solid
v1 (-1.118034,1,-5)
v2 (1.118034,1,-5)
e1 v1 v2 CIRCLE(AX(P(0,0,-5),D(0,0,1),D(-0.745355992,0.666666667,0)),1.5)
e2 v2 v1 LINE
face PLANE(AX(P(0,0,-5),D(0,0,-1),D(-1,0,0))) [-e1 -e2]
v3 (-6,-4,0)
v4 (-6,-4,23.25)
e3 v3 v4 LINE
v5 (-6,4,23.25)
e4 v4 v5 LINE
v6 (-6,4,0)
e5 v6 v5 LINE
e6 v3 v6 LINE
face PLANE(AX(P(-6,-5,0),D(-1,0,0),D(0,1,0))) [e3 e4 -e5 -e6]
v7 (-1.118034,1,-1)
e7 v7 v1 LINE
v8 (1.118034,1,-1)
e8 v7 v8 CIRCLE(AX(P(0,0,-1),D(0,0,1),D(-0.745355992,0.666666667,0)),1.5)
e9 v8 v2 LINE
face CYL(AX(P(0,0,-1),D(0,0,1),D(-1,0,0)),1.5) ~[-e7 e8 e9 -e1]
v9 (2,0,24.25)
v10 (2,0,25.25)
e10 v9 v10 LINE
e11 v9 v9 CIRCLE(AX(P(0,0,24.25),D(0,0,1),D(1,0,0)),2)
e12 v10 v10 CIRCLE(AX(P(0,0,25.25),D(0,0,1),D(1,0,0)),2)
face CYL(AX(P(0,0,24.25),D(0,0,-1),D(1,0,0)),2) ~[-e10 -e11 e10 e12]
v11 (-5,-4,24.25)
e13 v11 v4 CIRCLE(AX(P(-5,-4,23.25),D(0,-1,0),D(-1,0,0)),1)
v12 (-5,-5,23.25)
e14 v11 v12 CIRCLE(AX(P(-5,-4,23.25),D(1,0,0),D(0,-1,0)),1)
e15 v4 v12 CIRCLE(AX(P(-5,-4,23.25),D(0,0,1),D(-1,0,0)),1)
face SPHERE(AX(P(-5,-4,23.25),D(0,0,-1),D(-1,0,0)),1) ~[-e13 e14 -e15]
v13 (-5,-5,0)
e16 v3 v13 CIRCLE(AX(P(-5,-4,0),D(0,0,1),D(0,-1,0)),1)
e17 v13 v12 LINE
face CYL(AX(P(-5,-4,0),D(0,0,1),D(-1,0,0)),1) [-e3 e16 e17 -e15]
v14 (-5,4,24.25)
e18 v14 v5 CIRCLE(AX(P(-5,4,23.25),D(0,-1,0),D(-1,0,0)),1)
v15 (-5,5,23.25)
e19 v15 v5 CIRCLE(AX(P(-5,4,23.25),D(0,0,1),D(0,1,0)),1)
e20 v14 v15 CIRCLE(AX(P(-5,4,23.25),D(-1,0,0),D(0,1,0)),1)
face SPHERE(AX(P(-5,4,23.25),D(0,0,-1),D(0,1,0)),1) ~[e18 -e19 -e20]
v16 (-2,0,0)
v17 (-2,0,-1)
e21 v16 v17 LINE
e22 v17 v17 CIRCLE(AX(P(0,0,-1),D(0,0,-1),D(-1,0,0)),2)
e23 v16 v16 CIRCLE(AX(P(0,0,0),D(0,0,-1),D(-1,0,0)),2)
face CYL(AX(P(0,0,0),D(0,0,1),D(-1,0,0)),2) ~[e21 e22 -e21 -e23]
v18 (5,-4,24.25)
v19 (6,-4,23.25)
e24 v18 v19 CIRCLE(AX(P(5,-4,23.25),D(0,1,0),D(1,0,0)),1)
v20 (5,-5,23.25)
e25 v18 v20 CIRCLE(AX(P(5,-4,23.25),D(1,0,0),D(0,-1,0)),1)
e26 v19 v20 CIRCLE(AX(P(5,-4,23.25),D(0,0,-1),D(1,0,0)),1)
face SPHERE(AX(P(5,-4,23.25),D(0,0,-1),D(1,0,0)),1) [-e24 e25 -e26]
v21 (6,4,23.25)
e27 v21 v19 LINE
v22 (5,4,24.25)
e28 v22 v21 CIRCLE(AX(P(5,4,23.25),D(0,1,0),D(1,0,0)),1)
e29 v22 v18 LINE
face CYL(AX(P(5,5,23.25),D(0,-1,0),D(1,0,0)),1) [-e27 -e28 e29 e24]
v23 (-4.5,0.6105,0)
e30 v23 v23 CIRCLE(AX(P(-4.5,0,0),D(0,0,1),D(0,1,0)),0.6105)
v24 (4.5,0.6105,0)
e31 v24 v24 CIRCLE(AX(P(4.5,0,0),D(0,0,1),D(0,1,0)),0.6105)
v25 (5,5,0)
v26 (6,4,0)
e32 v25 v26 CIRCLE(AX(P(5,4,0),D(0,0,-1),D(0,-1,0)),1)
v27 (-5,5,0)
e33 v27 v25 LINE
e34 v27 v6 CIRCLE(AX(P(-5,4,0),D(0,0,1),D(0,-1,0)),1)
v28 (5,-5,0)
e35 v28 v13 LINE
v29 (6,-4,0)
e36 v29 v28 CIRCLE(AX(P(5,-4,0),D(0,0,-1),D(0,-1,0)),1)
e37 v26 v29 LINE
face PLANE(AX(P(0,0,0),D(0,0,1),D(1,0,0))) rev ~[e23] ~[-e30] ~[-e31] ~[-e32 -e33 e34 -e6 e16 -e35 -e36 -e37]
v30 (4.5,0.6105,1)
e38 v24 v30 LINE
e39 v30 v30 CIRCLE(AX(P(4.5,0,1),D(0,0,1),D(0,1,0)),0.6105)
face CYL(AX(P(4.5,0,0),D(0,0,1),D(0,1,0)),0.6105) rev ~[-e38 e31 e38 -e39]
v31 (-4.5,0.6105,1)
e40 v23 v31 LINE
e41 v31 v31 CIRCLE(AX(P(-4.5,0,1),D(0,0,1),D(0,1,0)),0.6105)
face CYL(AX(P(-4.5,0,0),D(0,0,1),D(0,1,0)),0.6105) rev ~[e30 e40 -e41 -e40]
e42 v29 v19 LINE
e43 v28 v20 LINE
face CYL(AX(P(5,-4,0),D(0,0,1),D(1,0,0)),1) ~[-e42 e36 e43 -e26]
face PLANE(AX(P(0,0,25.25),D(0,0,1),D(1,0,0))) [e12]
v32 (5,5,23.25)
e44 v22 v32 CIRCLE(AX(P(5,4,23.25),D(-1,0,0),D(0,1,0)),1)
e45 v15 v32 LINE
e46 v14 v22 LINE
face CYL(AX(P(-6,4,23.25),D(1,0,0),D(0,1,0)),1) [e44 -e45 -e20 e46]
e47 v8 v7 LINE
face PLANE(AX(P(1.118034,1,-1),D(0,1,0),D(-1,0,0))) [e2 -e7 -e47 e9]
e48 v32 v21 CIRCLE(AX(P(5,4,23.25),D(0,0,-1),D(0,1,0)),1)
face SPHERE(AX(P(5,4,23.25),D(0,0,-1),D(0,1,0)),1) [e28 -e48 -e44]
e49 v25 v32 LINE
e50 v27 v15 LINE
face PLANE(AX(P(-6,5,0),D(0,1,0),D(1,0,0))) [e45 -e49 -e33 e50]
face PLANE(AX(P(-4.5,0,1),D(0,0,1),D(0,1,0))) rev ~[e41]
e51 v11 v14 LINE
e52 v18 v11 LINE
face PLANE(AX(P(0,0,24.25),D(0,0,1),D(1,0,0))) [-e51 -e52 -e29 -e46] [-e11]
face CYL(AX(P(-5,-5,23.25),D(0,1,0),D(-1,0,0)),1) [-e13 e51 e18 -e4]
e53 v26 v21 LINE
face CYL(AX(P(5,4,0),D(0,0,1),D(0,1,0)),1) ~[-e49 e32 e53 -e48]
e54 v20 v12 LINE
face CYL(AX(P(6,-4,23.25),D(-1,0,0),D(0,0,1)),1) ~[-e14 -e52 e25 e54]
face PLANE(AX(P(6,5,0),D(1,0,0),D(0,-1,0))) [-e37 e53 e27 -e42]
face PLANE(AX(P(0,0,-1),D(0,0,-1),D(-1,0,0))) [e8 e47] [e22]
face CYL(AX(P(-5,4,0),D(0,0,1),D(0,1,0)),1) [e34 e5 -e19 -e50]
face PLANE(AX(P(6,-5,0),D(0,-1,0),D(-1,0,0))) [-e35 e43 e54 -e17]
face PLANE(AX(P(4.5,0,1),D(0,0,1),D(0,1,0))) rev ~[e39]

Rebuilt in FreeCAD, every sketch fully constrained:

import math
import FreeCAD as App
import Part
import Sketcher
from FreeCAD import Vector
Q = App.Units.Quantity


def edges_at(feature, points):
    """Names of the edges that pass closest to the given points."""
    edges = feature.Shape.Edges
    near = lambda p: min(range(len(edges)), key=lambda i: edges[i].distToShape(Part.Vertex(*p))[0])
    return sorted({f"Edge{near(p) + 1}" for p in points})

doc = App.newDocument("Part")
body = doc.addObject("PartDesign::Body", "Body")

# Sketch on XY plane
sketch1 = body.newObject("Sketcher::SketchObject", "Sketch")
sketch1.AttachmentSupport = (doc.getObject("XY_Plane"), [""])
sketch1.MapMode = "FlatFace"
sketch1.addGeometry(Part.LineSegment(Vector(6, 5, 0), Vector(-6, 5, 0)), False)
sketch1.addGeometry(Part.LineSegment(Vector(-6, 5, 0), Vector(-6, -5, 0)), False)
sketch1.addGeometry(Part.LineSegment(Vector(-6, -5, 0), Vector(6, -5, 0)), False)
sketch1.addGeometry(Part.LineSegment(Vector(6, -5, 0), Vector(6, 5, 0)), False)
sketch1.addConstraint(Sketcher.Constraint("Coincident", 0, 2, 1, 1))
sketch1.addConstraint(Sketcher.Constraint("Coincident", 1, 2, 2, 1))
sketch1.addConstraint(Sketcher.Constraint("Coincident", 2, 2, 3, 1))
sketch1.addConstraint(Sketcher.Constraint("Coincident", 3, 2, 0, 1))
sketch1.addConstraint(Sketcher.Constraint("Horizontal", 0))
sketch1.addConstraint(Sketcher.Constraint("Vertical", 1))
sketch1.addConstraint(Sketcher.Constraint("Horizontal", 2))
sketch1.addConstraint(Sketcher.Constraint("Vertical", 3))
sketch1.addConstraint(Sketcher.Constraint("Symmetric", 0, 2, 2, 2, -1, 1))
sketch1.addConstraint(Sketcher.Constraint("DistanceX", 0, 2, 0, 1, Q("12 mm")))
sketch1.addConstraint(Sketcher.Constraint("DistanceY", 1, 2, 1, 1, Q("10 mm")))
pad1 = body.newObject("PartDesign::Pad", "Pad")
pad1.Profile = sketch1
pad1.Length = 24.25

# Sketch on XY plane
sketch2 = body.newObject("Sketcher::SketchObject", "Sketch001")
sketch2.AttachmentSupport = (doc.getObject("XY_Plane"), [""])
sketch2.MapMode = "FlatFace"
sketch2.AttachmentOffset = App.Placement(Vector(0, 0, 24.25), App.Rotation())
sketch2.addGeometry(Part.Circle(Vector(0, 0, 0), Vector(0, 0, 1), 2), False)
sketch2.addConstraint(Sketcher.Constraint("Coincident", 0, 3, -1, 1))
sketch2.addConstraint(Sketcher.Constraint("Diameter", 0, Q("4 mm")))
pad2 = body.newObject("PartDesign::Pad", "Pad001")
pad2.Profile = sketch2
pad2.Length = 1

# Sketch on XY plane
sketch3 = body.newObject("Sketcher::SketchObject", "Sketch002")
sketch3.AttachmentSupport = (doc.getObject("XY_Plane"), [""])
sketch3.MapMode = "FlatFace"
sketch3.addGeometry(Part.Circle(Vector(0, 0, 0), Vector(0, 0, 1), 2), False)
sketch3.addConstraint(Sketcher.Constraint("Coincident", 0, 3, -1, 1))
sketch3.addConstraint(Sketcher.Constraint("Diameter", 0, Q("4 mm")))
pad3 = body.newObject("PartDesign::Pad", "Pad002")
pad3.Profile = sketch3
pad3.Length = 1
pad3.Reversed = True

# Sketch on XY plane
sketch4 = body.newObject("Sketcher::SketchObject", "Sketch003")
sketch4.AttachmentSupport = (doc.getObject("XY_Plane"), [""])
sketch4.MapMode = "FlatFace"
sketch4.AttachmentOffset = App.Placement(Vector(0, 0, -1), App.Rotation())
sketch4.addGeometry(Part.ArcOfCircle(Part.Circle(Vector(0, 0, 0), Vector(0, 0, 1), 1.5), math.radians(138), math.radians(402)), False)
sketch4.addGeometry(Part.LineSegment(Vector(-1.1, 1, 0), Vector(1.1, 1, 0)), False)
sketch4.addConstraint(Sketcher.Constraint("Coincident", 0, 1, 1, 1))
sketch4.addConstraint(Sketcher.Constraint("Coincident", 1, 2, 0, 2))
sketch4.addConstraint(Sketcher.Constraint("Horizontal", 1))
sketch4.addConstraint(Sketcher.Constraint("Coincident", 0, 3, -1, 1))
sketch4.addConstraint(Sketcher.Constraint("Radius", 0, Q("1.5 mm")))
sketch4.addConstraint(Sketcher.Constraint("DistanceY", -1, 1, 0, 1, Q("1 mm")))
pad4 = body.newObject("PartDesign::Pad", "Pad003")
pad4.Profile = sketch4
pad4.Length = 4
pad4.Reversed = True
doc.recompute()

fillet = body.newObject("PartDesign::Fillet", "Fillet")
fillet.Base = (pad4, edges_at(pad4, [
    (6, 5, 12.125),
    (-6, 5, 12.125),
    (6, -5, 12.125),
    (-6, -5, 12.125),
    (0, 5, 24.25),
    (6, 0, 24.25),
    (-6, 0, 24.25),
    (0, -5, 24.25),
]))
fillet.Radius = 1

# Sketch on XY plane
sketch5 = body.newObject("Sketcher::SketchObject", "Sketch004")
sketch5.AttachmentSupport = (doc.getObject("XY_Plane"), [""])
sketch5.MapMode = "FlatFace"
sketch5.addGeometry(Part.Circle(Vector(4.5, 0, 0), Vector(0, 0, 1), 0.6), False)
sketch5.addGeometry(Part.Circle(Vector(-4.5, 0, 0), Vector(0, 0, 1), 0.6), False)
sketch5.addConstraint(Sketcher.Constraint("Equal", 0, 1))
sketch5.addConstraint(Sketcher.Constraint("Symmetric", 0, 3, 1, 3, -1, 1))
sketch5.addConstraint(Sketcher.Constraint("PointOnObject", 0, 3, -1))
sketch5.addConstraint(Sketcher.Constraint("Diameter", 0, Q("1.221 mm")))
sketch5.addConstraint(Sketcher.Constraint("DistanceX", 1, 3, 0, 3, Q("9 mm")))
doc.recompute()
hole = body.newObject("PartDesign::Hole", "Hole")
hole.Profile = sketch5
hole.ThreadType = "None"
hole.Diameter = 1.221
hole.DepthType = "Dimension"
hole.Depth = 1
hole.DrillPoint = "Flat"
hole.Reversed = True

doc.recompute()
